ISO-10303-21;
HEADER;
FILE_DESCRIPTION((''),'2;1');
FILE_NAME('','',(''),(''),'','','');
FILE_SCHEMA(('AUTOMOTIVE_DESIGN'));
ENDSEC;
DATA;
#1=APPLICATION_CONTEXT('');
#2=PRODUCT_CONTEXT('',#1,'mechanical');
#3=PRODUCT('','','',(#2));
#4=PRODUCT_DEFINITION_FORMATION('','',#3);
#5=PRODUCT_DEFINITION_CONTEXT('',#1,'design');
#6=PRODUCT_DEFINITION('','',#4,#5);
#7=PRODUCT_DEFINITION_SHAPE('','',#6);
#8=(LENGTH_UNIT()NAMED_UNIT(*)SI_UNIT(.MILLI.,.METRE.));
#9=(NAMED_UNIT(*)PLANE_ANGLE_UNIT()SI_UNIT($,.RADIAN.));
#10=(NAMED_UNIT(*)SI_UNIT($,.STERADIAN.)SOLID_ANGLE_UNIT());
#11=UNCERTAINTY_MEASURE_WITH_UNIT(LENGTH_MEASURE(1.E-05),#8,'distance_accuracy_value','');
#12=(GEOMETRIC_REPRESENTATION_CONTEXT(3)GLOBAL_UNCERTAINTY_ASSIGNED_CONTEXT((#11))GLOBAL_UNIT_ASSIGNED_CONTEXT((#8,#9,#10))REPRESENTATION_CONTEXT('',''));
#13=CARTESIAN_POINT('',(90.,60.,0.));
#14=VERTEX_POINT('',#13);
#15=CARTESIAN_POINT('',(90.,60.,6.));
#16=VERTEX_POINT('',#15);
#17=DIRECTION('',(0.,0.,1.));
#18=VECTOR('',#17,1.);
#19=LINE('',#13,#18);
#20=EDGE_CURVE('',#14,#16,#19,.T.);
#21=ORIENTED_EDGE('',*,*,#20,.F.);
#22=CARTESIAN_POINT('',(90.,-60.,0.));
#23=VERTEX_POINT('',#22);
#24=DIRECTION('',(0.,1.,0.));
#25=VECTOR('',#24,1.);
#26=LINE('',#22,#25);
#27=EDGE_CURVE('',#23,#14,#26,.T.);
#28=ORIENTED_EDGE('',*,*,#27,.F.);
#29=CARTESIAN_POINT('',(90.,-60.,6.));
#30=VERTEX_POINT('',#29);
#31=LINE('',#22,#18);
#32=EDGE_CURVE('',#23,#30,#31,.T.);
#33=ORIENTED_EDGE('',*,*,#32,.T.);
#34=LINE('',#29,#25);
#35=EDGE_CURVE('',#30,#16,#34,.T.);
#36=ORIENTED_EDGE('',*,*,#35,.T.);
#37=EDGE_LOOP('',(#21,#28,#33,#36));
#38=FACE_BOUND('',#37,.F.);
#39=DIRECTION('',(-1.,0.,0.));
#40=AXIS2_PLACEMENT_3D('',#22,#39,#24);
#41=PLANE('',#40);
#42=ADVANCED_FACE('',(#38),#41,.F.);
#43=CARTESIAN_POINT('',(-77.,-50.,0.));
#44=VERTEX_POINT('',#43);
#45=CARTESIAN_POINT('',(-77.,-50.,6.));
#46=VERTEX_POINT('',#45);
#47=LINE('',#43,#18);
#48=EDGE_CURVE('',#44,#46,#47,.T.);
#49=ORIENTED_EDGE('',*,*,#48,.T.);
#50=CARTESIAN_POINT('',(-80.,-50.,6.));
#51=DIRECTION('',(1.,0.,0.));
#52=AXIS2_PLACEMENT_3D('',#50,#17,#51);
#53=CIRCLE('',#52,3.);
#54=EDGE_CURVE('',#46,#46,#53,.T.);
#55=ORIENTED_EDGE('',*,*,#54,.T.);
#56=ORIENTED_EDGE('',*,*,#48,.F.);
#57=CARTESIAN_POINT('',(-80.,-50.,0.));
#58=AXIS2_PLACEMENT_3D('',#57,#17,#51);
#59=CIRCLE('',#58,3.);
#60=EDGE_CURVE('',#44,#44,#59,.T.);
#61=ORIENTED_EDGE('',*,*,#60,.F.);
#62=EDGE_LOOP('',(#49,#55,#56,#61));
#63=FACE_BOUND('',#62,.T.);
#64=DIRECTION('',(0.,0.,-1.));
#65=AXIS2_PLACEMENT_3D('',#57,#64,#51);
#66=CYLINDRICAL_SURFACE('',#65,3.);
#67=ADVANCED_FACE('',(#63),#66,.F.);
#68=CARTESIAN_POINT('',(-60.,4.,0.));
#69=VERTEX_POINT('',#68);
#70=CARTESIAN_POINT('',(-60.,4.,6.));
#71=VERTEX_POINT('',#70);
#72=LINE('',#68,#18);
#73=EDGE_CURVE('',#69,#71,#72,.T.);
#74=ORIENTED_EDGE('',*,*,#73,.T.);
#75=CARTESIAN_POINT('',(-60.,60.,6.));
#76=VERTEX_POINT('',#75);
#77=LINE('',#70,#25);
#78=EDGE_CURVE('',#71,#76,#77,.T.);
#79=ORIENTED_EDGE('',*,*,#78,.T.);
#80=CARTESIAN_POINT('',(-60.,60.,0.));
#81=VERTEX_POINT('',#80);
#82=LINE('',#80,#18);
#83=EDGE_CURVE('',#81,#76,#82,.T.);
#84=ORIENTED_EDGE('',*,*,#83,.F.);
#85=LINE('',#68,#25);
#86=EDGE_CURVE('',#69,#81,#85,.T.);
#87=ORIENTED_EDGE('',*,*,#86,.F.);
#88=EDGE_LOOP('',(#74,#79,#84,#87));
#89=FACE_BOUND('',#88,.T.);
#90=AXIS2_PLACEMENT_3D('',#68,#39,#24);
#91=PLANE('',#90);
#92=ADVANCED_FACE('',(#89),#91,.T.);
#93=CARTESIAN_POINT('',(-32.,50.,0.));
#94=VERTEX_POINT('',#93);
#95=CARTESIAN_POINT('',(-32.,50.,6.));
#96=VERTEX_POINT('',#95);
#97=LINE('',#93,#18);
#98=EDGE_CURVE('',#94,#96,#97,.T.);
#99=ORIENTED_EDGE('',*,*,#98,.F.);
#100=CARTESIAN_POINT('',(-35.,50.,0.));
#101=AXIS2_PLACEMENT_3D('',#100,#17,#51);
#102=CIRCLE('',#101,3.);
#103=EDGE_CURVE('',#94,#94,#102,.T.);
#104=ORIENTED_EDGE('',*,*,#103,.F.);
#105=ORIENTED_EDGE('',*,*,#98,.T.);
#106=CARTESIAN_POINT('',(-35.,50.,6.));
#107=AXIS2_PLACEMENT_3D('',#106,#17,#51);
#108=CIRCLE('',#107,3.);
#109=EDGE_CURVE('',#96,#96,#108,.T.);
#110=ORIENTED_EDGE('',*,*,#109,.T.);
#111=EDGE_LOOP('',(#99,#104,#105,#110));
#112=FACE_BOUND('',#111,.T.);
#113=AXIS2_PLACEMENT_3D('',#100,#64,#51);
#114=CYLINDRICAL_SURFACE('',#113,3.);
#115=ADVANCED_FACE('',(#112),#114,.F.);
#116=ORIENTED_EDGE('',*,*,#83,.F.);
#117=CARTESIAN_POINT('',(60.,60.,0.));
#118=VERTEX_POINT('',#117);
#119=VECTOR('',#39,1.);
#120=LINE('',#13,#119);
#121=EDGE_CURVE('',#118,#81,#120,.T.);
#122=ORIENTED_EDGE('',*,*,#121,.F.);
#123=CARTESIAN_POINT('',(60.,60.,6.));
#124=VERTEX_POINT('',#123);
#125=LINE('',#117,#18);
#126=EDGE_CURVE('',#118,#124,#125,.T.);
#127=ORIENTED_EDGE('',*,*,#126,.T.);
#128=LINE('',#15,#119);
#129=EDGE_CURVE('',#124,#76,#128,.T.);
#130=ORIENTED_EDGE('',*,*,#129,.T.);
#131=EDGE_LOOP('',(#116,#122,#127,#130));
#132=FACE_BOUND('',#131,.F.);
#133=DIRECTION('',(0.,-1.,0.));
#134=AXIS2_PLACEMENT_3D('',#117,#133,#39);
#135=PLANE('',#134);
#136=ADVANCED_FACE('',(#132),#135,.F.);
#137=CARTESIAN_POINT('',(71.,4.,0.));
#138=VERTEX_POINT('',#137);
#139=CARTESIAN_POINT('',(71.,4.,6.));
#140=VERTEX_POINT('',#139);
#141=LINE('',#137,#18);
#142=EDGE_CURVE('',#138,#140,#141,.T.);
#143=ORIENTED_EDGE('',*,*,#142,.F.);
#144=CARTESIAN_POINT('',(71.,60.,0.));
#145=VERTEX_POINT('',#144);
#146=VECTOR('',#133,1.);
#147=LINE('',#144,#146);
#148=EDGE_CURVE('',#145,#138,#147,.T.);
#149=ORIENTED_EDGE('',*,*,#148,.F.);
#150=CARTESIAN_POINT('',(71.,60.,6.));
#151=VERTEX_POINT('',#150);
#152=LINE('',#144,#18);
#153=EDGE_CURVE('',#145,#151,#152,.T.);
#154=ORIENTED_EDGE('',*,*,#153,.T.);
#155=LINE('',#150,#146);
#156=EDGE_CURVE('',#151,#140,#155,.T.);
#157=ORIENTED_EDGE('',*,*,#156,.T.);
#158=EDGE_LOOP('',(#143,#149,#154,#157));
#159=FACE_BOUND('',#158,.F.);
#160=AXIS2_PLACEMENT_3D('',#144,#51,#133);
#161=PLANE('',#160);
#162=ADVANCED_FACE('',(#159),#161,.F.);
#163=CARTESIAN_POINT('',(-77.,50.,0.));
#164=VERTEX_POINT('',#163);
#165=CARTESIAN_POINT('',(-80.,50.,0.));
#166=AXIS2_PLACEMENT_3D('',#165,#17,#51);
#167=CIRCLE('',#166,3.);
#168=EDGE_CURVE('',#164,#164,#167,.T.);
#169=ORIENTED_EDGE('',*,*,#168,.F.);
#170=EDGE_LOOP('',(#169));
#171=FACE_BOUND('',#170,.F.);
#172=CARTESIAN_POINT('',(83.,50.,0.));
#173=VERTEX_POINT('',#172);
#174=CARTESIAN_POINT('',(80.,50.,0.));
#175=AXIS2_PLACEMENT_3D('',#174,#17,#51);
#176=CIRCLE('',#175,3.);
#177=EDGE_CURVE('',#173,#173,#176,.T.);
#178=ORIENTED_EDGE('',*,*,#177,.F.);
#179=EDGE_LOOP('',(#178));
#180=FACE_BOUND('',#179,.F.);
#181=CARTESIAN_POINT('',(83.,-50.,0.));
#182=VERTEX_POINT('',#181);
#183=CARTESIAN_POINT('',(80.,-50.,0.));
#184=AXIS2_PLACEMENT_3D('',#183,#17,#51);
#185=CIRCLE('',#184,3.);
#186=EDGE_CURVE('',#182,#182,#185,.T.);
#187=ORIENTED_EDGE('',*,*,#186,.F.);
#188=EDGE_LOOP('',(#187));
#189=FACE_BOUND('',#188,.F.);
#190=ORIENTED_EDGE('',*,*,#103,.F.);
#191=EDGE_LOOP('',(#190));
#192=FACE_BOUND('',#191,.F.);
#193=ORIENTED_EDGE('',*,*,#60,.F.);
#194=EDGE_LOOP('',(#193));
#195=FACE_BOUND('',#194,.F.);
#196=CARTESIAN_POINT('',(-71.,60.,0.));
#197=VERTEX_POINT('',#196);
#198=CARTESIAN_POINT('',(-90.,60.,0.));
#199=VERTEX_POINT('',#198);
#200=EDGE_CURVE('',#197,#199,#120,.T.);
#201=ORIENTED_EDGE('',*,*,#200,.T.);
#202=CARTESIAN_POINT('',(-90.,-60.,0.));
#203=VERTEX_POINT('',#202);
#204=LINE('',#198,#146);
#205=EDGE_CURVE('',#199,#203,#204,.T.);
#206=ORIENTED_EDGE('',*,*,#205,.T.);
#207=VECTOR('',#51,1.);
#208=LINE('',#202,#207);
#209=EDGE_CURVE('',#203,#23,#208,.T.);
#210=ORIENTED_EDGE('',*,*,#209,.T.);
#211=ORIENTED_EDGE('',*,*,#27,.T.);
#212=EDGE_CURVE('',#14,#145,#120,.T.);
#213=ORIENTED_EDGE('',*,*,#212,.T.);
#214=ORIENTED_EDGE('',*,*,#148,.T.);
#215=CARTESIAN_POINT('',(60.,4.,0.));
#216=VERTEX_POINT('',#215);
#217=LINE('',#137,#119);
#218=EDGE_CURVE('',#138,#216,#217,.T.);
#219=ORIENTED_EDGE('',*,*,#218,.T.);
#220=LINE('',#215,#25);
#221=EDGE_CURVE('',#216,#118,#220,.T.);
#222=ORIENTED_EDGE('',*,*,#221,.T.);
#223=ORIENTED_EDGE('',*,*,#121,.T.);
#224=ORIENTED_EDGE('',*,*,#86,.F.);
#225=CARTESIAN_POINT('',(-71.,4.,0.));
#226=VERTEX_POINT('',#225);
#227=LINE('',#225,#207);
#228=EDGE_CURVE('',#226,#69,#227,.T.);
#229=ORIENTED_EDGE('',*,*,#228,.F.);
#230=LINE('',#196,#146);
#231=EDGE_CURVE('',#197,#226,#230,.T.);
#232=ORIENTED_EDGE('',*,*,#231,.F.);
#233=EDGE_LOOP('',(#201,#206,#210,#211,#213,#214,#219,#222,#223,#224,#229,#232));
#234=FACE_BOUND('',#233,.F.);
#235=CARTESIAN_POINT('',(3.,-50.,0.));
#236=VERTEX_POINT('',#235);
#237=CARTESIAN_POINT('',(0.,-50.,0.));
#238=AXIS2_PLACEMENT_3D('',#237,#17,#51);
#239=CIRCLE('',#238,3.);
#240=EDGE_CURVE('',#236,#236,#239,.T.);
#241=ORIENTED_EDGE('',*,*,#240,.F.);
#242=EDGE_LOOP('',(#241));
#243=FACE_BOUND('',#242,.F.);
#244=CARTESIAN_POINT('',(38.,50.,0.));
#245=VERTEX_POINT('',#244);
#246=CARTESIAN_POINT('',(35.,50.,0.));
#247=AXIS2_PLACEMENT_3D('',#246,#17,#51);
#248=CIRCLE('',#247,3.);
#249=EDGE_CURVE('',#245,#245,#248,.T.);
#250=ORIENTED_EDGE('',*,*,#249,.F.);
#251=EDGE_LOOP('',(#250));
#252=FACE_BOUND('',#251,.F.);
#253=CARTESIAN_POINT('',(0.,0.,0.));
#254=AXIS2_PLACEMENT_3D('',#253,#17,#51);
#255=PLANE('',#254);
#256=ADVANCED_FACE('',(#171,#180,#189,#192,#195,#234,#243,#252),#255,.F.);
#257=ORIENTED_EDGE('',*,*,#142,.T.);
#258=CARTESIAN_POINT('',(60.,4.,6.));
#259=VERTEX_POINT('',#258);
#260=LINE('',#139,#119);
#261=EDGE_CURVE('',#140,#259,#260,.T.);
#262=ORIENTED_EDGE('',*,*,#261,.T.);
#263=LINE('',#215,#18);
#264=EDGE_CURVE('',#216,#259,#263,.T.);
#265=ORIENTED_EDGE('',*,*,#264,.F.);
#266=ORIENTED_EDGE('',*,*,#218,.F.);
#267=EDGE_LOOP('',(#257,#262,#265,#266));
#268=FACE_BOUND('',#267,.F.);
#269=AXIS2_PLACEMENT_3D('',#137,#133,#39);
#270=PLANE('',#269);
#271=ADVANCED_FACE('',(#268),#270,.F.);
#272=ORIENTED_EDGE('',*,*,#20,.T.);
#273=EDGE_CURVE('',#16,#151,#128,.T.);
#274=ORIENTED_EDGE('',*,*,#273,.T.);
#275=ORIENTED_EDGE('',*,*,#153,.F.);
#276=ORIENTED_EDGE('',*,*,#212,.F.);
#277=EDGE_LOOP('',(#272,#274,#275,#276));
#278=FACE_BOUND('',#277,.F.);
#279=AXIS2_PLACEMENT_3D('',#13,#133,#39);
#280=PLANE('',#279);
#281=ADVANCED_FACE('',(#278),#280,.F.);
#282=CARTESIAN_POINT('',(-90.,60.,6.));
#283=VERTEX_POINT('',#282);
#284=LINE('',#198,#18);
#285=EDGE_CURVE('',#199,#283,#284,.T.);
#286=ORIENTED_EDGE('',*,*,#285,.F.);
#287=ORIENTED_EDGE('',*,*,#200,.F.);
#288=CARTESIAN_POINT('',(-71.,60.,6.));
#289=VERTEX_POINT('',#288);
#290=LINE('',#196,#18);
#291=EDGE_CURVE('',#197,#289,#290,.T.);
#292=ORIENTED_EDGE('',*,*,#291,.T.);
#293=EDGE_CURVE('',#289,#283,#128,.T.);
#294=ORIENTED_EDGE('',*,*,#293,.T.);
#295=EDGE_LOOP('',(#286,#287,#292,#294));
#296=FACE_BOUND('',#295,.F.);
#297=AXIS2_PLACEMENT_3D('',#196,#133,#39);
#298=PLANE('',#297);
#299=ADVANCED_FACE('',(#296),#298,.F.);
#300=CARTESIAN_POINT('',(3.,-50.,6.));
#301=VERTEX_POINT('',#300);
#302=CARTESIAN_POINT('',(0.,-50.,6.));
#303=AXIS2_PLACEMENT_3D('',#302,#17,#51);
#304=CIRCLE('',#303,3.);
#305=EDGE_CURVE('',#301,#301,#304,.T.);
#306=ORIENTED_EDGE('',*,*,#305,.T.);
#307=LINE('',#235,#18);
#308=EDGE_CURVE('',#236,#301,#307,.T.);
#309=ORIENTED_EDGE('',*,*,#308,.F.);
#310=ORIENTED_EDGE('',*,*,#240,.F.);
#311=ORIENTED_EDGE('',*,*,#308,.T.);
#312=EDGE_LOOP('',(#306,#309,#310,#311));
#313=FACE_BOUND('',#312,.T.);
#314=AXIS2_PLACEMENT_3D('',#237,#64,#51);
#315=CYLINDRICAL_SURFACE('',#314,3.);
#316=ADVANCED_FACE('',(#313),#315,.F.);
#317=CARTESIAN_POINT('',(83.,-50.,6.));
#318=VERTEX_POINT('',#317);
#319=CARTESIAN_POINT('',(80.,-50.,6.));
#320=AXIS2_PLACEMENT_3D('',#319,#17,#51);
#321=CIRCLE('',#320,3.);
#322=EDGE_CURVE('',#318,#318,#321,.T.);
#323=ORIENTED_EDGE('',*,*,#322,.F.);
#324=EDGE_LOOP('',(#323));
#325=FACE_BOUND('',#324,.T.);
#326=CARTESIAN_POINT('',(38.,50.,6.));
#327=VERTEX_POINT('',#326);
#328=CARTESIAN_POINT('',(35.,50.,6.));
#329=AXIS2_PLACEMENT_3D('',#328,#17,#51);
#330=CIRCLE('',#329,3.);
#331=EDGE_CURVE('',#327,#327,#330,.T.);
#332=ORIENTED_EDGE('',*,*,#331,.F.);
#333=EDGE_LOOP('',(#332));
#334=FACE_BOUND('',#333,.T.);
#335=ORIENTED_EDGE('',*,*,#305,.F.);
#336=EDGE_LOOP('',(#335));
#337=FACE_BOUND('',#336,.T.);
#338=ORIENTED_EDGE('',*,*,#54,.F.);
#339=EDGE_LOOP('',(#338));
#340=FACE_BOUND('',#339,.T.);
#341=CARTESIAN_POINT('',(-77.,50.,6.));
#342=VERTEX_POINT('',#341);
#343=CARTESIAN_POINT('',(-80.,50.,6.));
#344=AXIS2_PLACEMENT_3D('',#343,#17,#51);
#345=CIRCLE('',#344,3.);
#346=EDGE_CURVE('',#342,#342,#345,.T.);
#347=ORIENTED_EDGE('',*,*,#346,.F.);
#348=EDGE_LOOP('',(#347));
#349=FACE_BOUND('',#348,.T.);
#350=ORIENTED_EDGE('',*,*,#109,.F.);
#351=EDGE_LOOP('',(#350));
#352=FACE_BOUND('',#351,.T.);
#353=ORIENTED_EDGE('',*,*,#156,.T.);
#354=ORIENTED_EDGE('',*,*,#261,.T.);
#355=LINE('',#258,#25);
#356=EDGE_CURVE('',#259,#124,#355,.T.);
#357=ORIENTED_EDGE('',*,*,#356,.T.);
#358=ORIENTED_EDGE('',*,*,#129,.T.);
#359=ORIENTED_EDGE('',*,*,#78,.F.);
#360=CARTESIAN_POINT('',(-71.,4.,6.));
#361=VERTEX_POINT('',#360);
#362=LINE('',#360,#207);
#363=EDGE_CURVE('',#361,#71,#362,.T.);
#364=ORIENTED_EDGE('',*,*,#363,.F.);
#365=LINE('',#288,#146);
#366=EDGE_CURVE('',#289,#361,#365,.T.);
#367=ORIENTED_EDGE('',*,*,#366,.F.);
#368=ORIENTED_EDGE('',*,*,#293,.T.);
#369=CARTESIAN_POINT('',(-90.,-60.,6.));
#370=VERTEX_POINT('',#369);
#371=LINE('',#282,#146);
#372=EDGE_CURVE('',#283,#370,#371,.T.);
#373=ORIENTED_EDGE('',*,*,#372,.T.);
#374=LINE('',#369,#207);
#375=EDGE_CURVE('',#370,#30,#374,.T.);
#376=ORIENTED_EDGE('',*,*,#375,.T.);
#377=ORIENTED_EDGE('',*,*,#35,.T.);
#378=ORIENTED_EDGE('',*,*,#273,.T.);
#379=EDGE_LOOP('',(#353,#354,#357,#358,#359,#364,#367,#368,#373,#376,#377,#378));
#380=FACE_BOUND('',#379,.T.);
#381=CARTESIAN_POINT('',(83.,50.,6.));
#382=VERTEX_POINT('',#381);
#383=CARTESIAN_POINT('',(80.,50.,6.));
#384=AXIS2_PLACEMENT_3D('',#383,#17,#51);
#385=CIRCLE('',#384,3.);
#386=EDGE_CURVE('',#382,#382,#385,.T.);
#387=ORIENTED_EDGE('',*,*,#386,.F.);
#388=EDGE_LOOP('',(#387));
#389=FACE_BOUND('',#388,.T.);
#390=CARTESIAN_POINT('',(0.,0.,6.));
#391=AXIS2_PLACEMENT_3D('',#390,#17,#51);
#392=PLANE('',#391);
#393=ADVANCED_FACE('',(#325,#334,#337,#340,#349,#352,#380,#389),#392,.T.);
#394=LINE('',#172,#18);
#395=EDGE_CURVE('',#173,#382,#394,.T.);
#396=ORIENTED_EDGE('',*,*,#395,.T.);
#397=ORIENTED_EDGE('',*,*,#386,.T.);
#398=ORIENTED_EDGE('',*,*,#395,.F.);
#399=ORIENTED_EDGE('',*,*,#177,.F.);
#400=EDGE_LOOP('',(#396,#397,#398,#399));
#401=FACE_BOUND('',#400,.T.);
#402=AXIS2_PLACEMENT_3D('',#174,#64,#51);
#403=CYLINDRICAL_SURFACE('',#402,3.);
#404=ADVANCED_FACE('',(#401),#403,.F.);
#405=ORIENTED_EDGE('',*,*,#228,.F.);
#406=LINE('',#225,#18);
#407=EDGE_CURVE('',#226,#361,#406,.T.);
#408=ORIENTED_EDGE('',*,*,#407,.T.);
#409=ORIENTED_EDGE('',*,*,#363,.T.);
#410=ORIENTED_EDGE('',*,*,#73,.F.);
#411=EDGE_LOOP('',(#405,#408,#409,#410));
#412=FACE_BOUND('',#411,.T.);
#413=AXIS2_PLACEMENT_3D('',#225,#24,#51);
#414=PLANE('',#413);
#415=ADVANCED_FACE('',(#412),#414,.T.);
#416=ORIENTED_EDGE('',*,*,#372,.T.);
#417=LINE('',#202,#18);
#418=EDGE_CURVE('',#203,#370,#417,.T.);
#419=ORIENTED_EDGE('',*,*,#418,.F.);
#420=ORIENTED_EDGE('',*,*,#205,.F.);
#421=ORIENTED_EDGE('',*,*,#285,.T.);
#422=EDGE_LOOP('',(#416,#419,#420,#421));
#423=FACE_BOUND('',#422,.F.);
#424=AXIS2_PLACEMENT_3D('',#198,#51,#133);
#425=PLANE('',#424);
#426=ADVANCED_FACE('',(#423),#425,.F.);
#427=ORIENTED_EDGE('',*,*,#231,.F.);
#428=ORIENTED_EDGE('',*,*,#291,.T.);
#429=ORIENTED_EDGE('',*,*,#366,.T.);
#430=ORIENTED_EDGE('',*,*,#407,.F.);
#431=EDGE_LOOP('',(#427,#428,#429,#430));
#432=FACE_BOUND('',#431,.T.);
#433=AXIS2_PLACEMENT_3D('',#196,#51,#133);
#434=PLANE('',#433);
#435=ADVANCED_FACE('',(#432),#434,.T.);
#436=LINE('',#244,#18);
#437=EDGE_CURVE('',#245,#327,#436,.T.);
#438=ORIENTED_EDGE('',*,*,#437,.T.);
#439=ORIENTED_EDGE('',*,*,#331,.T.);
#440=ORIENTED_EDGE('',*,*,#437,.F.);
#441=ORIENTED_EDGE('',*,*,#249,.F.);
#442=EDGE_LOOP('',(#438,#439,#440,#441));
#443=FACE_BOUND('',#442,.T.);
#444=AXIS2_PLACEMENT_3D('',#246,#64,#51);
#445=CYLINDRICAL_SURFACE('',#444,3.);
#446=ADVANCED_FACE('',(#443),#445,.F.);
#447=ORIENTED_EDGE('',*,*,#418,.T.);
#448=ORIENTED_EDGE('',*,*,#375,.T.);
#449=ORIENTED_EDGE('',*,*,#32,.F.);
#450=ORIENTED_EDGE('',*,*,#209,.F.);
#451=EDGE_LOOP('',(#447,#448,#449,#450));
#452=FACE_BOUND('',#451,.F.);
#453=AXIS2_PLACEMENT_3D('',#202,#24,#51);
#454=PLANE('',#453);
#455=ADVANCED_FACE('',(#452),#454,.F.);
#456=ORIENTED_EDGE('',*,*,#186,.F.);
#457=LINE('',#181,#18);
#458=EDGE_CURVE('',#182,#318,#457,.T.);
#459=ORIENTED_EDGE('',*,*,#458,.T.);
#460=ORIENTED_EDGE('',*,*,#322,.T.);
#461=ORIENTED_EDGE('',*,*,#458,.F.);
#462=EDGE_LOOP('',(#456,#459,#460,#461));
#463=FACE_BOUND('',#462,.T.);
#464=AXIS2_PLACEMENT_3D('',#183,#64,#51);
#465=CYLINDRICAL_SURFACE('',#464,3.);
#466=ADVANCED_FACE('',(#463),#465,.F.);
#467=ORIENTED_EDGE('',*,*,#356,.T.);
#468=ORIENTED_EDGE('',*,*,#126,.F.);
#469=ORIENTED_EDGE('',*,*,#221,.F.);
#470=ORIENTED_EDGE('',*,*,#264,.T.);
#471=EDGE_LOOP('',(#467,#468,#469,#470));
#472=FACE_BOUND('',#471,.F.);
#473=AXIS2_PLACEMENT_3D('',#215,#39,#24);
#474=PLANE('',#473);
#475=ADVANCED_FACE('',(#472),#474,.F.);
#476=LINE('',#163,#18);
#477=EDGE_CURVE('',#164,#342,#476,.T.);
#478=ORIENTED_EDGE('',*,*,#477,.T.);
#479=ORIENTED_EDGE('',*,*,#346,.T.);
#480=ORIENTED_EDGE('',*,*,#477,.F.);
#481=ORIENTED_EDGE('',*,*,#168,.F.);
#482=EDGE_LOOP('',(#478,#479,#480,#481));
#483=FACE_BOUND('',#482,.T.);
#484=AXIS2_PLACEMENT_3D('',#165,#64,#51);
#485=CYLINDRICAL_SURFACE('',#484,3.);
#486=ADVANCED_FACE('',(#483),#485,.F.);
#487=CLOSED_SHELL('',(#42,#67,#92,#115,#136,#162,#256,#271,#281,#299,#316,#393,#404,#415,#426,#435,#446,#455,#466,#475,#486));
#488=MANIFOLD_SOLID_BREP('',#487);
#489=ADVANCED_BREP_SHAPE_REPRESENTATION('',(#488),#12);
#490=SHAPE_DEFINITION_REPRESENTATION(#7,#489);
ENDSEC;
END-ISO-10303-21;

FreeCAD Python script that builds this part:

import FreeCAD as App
import Part
import Sketcher


def add_polygon(sketch, points):
    """Adds a closed chain of lines whose ends are joined by coincident constraints."""
    first, n = sketch.GeometryCount, len(points)
    for a, b in zip(points, points[1:] + points[:1]):
        sketch.addGeometry(Part.LineSegment(App.Vector(*a, 0), App.Vector(*b, 0)), False)
    for i in range(n):
        sketch.addConstraint(Sketcher.Constraint("Coincident", first + i, 2, first + (i + 1) % n, 1))

doc = App.newDocument("Part")
body = doc.addObject("PartDesign::Body", "Body")

# Sketch on XY plane
sketch1 = body.newObject("Sketcher::SketchObject", "Sketch")
sketch1.AttachmentSupport = (doc.getObject("XY_Plane"), [""])
sketch1.MapMode = "FlatFace"
add_polygon(sketch1, [(90, -60), (90, 60), (71, 60), (71, 4), (60, 4), (60, 60), (-60, 60), (-60, 4), (-71, 4), (-71, 60), (-90, 60), (-90, -60)])  # lines 0-11
sketch1.addGeometry(Part.Circle(App.Vector(-80, -50, 0), App.Vector(0, 0, 1), 3), False)  # 12
sketch1.addGeometry(Part.Circle(App.Vector(0, -50, 0), App.Vector(0, 0, 1), 3), False)  # 13
sketch1.addGeometry(Part.Circle(App.Vector(80, -50, 0), App.Vector(0, 0, 1), 3), False)  # 14
sketch1.addGeometry(Part.Circle(App.Vector(-80, 50, 0), App.Vector(0, 0, 1), 3), False)  # 15
sketch1.addGeometry(Part.Circle(App.Vector(-35, 50, 0), App.Vector(0, 0, 1), 3), False)  # 16
sketch1.addGeometry(Part.Circle(App.Vector(35, 50, 0), App.Vector(0, 0, 1), 3), False)  # 17
sketch1.addGeometry(Part.Circle(App.Vector(80, 50, 0), App.Vector(0, 0, 1), 3), False)  # 18
sketch1.addConstraint([
    Sketcher.Constraint("Vertical", 0),
    Sketcher.Constraint("Horizontal", 1),
    Sketcher.Constraint("Vertical", 2),
    Sketcher.Constraint("Horizontal", 3),
    Sketcher.Constraint("Vertical", 4),
    Sketcher.Constraint("Horizontal", 5),
    Sketcher.Constraint("Vertical", 6),
    Sketcher.Constraint("Horizontal", 7),
    Sketcher.Constraint("Vertical", 8),
    Sketcher.Constraint("Horizontal", 9),
    Sketcher.Constraint("Vertical", 10),
    Sketcher.Constraint("Horizontal", 11),
    Sketcher.Constraint("Equal", 12, 13),
    Sketcher.Constraint("Equal", 13, 14),
    Sketcher.Constraint("Equal", 14, 15),
    Sketcher.Constraint("Equal", 15, 16),
    Sketcher.Constraint("Equal", 16, 17),
    Sketcher.Constraint("Equal", 17, 18),
    Sketcher.Constraint("Symmetric", 14, 3, 15, 3, -1, 1),
    Sketcher.Constraint("Symmetric", 12, 3, 18, 3, -1, 1),
    Sketcher.Constraint("Symmetric", 0, 2, 10, 2, -1, 1),
    Sketcher.Constraint("Symmetric", 12, 3, 14, 3, -2),
    Sketcher.Constraint("Symmetric", 16, 3, 17, 3, -2),
    Sketcher.Constraint("Symmetric", 3, 2, 6, 2, -2),
    Sketcher.Constraint("Symmetric", 1, 2, 8, 2, -2),
    Sketcher.Constraint("PointOnObject", 13, 3, -2),
    Sketcher.Constraint("Horizontal", 12, 3, 13, 3),
    Sketcher.Constraint("Horizontal", 15, 3, 16, 3),
    Sketcher.Constraint("Horizontal", 1, 2, 4, 2),
    Sketcher.Constraint("Equal", 5, 0),
    Sketcher.Constraint("Diameter", 12, 6.0),
    Sketcher.Constraint("DistanceX", 3, 2, 3, 1, 11.0),
    Sketcher.Constraint("DistanceY", 2, 2, 2, 1, 56.0),
    Sketcher.Constraint("DistanceX", 12, 3, -1, 1, 80.0),
    Sketcher.Constraint("DistanceX", 16, 3, -1, 1, 35.0),
    Sketcher.Constraint("DistanceX", 18, 3, 0, 2, 10.0),
    Sketcher.Constraint("DistanceY", 18, 3, 0, 2, 10.0),
    Sketcher.Constraint("DistanceX", 3, 2, 18, 3, 20.0),
])
pad1 = body.newObject("PartDesign::Pad", "Pad")
pad1.Profile = sketch1
pad1.Length = 6

doc.recompute()
